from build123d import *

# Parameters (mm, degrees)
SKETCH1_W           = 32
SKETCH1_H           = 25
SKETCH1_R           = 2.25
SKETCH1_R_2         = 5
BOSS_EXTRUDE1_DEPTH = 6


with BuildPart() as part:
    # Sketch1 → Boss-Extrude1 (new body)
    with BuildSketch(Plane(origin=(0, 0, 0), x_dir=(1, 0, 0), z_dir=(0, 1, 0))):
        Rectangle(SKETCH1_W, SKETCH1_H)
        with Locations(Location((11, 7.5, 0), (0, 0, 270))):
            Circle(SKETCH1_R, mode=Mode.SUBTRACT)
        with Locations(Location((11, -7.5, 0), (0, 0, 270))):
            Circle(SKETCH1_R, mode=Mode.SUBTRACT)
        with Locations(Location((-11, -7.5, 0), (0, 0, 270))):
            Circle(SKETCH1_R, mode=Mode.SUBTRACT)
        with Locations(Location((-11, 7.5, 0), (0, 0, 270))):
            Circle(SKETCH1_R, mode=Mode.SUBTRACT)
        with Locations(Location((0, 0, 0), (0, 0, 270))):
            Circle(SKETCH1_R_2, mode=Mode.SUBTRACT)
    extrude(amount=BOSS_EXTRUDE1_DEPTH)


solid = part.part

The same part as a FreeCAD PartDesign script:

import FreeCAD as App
import Part
import Sketcher

doc = App.newDocument("Part")
params = doc.addObject("Spreadsheet::Sheet", "Params")
for row, (alias, value) in enumerate([
    ("sketch1_diameter", "10 mm"),
    ("sketch1_diameter2", "4.5 mm"),
    ("sketch1_width", "32 mm"),
    ("sketch1_height", "25 mm"),
    ("pad1_length", "6 mm"),
], start=1):
    params.set(f"A{row}", alias)
    params.set(f"B{row}", "=" + value)
    params.setAlias(f"B{row}", alias)

body = doc.addObject("PartDesign::Body", "Body")

# Sketch on XZ plane
sketch1 = body.newObject("Sketcher::SketchObject", "Sketch")
sketch1.AttachmentSupport = (doc.getObject("XZ_Plane"), [""])
sketch1.MapMode = "FlatFace"
sketch1.addGeometry(Part.LineSegment(App.Vector(-16, -12.5, 0), App.Vector(-16, 12.5, 0)), False)
sketch1.addGeometry(Part.LineSegment(App.Vector(-16, 12.5, 0), App.Vector(16, 12.5, 0)), False)
sketch1.addGeometry(Part.LineSegment(App.Vector(16, 12.5, 0), App.Vector(16, -12.5, 0)), False)
sketch1.addGeometry(Part.LineSegment(App.Vector(16, -12.5, 0), App.Vector(-16, -12.5, 0)), False)
sketch1.addGeometry(Part.Circle(App.Vector(-11, 7.5, 0), App.Vector(0, 0, 1), 2.2), False)
sketch1.addGeometry(Part.Circle(App.Vector(11, 7.5, 0), App.Vector(0, 0, 1), 2.2), False)
sketch1.addGeometry(Part.Circle(App.Vector(-11, -7.5, 0), App.Vector(0, 0, 1), 2.2), False)
sketch1.addGeometry(Part.Circle(App.Vector(0, 0, 0), App.Vector(0, 0, 1), 5), False)
sketch1.addGeometry(Part.Circle(App.Vector(11, -7.5, 0), App.Vector(0, 0, 1), 2.2), False)
sketch1.addConstraint(Sketcher.Constraint("Coincident", 0, 2, 1, 1))
sketch1.addConstraint(Sketcher.Constraint("Coincident", 1, 2, 2, 1))
sketch1.addConstraint(Sketcher.Constraint("Coincident", 2, 2, 3, 1))
sketch1.addConstraint(Sketcher.Constraint("Coincident", 3, 2, 0, 1))
sketch1.addConstraint(Sketcher.Constraint("Vertical", 0))
sketch1.addConstraint(Sketcher.Constraint("Horizontal", 1))
sketch1.addConstraint(Sketcher.Constraint("Vertical", 2))
sketch1.addConstraint(Sketcher.Constraint("Horizontal", 3))
sketch1.addConstraint(Sketcher.Constraint("Coincident", 7, 3, -1, 1))
sketch1.addConstraint(Sketcher.Constraint("Equal", 4, 5))
sketch1.addConstraint(Sketcher.Constraint("Equal", 5, 6))
sketch1.addConstraint(Sketcher.Constraint("Equal", 6, 8))
sketch1.addConstraint(Sketcher.Constraint("Symmetric", 5, 3, 6, 3, -1, 1))
sketch1.addConstraint(Sketcher.Constraint("Symmetric", 4, 3, 8, 3, -1, 1))
sketch1.addConstraint(Sketcher.Constraint("Symmetric", 0, 2, 2, 2, -1, 1))
sketch1.addConstraint(Sketcher.Constraint("Symmetric", 4, 3, 5, 3, -2))
sketch1.addConstraint(Sketcher.Constraint("Diameter", 7, 10.0))
sketch1.addConstraint(Sketcher.Constraint("Diameter", 4, 4.5))
sketch1.addConstraint(Sketcher.Constraint("DistanceX", 1, 1, 1, 2, 32.0))
sketch1.addConstraint(Sketcher.Constraint("DistanceY", 0, 1, 0, 2, 25.0))
sketch1.addConstraint(Sketcher.Constraint("DistanceX", 4, 3, -1, 1, 11.0))
sketch1.addConstraint(Sketcher.Constraint("DistanceY", 6, 3, 4, 3, 15.0))
sketch1.setExpression("Constraints[16]", "Params.sketch1_diameter")
sketch1.setExpression("Constraints[17]", "Params.sketch1_diameter2")
sketch1.setExpression("Constraints[18]", "Params.sketch1_width")
sketch1.setExpression("Constraints[19]", "Params.sketch1_height")
pad1 = body.newObject("PartDesign::Pad", "Pad")
pad1.Profile = sketch1
pad1.setExpression("Length", "Params.pad1_length")
pad1.Reversed = True

doc.recompute()
